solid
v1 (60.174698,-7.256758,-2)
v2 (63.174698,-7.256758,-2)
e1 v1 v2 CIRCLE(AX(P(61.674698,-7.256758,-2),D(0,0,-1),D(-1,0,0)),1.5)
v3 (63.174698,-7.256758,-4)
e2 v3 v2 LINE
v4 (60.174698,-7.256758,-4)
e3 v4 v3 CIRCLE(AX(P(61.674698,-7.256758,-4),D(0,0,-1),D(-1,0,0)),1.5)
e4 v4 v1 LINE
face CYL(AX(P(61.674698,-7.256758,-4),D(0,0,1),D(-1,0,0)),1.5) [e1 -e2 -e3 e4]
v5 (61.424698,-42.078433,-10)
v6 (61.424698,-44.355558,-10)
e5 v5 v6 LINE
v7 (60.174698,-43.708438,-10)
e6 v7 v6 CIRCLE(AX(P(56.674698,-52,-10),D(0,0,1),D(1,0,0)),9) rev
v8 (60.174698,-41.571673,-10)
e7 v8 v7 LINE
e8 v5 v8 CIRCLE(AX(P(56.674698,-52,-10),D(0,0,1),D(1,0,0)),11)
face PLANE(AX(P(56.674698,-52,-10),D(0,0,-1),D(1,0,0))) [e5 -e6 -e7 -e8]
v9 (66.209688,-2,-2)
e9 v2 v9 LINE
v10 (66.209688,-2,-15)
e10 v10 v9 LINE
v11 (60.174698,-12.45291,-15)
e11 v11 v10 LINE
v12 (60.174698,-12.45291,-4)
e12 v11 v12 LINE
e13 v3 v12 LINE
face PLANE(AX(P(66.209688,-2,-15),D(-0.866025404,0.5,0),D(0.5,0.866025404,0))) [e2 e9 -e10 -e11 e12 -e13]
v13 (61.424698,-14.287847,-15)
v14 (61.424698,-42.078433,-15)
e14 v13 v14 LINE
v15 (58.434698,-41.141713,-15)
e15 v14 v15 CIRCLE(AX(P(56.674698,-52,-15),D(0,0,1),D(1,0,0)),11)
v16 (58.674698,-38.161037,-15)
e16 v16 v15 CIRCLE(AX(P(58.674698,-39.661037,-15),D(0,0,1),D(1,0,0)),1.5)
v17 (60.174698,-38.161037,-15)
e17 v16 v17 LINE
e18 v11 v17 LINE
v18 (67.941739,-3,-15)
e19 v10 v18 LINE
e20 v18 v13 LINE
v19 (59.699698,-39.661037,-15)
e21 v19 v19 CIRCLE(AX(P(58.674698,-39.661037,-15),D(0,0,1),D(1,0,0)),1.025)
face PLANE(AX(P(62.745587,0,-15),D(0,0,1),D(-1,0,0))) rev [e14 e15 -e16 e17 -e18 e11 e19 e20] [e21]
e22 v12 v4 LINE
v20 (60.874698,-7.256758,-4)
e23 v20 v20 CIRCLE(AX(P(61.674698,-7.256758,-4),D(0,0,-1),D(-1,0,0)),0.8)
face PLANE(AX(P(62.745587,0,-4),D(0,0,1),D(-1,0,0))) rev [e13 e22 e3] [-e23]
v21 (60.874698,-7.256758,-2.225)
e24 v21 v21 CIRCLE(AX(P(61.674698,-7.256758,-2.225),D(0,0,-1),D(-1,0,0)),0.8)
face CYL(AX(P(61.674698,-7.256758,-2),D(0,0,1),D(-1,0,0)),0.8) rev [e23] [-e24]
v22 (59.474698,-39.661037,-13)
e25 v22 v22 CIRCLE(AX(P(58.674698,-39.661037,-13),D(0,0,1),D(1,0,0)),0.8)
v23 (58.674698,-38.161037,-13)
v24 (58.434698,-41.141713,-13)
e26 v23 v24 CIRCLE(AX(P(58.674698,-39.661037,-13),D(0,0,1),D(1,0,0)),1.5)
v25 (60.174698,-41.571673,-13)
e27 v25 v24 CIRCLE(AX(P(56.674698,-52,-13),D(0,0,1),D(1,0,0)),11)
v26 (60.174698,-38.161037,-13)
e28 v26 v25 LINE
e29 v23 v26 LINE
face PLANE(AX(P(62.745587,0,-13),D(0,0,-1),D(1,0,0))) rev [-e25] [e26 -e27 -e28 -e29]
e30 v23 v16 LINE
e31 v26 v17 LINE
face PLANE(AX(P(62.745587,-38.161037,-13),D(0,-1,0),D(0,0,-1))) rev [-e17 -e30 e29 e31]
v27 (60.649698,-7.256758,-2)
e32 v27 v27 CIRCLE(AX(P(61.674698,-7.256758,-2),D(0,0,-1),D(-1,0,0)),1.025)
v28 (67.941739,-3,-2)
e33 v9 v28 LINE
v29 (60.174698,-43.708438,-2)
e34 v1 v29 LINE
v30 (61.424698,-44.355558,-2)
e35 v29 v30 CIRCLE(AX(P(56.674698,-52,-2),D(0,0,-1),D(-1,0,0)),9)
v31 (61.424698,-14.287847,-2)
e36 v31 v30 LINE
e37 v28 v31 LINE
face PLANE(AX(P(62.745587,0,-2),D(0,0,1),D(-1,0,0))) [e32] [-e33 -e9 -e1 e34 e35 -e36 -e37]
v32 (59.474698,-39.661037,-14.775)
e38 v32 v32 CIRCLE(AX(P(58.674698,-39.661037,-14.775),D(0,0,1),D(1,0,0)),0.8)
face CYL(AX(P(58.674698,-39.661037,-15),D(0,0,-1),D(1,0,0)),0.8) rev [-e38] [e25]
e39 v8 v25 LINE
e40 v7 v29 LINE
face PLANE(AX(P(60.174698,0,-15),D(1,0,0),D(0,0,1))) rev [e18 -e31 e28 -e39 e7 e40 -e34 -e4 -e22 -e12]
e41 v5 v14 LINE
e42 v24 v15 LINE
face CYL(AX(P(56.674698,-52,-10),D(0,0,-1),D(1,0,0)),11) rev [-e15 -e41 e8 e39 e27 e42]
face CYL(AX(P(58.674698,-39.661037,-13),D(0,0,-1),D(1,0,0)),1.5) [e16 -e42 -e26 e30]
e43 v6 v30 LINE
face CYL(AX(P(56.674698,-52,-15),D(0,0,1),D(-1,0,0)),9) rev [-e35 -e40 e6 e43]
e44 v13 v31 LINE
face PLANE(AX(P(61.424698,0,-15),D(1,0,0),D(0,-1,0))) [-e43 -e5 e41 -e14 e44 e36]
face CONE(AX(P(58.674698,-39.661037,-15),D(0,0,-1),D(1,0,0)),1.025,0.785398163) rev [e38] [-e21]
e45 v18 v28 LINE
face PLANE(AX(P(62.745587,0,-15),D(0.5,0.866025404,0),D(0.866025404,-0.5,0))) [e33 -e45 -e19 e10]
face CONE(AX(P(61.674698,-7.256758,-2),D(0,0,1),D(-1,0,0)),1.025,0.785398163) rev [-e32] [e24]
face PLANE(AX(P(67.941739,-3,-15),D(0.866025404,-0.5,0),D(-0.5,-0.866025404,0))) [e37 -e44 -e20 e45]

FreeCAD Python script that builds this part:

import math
import FreeCAD as App
import Part
import Sketcher
Q = App.Units.Quantity

doc = App.newDocument("Part")
body = doc.addObject("PartDesign::Body", "Body")

# Sketch on XY plane
sketch1 = body.newObject("Sketcher::SketchObject", "Sketch")
sketch1.AttachmentSupport = (doc.getObject("XY_Plane"), [""])
sketch1.MapMode = "FlatFace"
sketch1.AttachmentOffset = App.Placement(App.Vector(0, 0, -2), App.Rotation())
sketch1.addGeometry(Part.LineSegment(App.Vector(2.6, -12.5, 0), App.Vector(-3.5, -2, 0)), False)
sketch1.addGeometry(Part.LineSegment(App.Vector(-3.5, -2, 0), App.Vector(-5.2, -3, 0)), False)
sketch1.addGeometry(Part.LineSegment(App.Vector(-5.2, -3, 0), App.Vector(1.3, -14.3, 0)), False)
sketch1.addGeometry(Part.LineSegment(App.Vector(1.3, -14.3, 0), App.Vector(1.3, -44.4, 0)), False)
sketch1.addGeometry(Part.ArcOfCircle(Part.Circle(App.Vector(6.1, -52, 0), App.Vector(0, 0, 1), 9), math.radians(112.89), math.radians(121.86)), False)
sketch1.addGeometry(Part.LineSegment(App.Vector(2.6, -43.7, 0), App.Vector(2.6, -12.5, 0)), False)
sketch1.addConstraint(Sketcher.Constraint("Coincident", 0, 2, 1, 1))
sketch1.addConstraint(Sketcher.Constraint("Coincident", 1, 2, 2, 1))
sketch1.addConstraint(Sketcher.Constraint("Coincident", 2, 2, 3, 1))
sketch1.addConstraint(Sketcher.Constraint("Coincident", 3, 2, 4, 2))
sketch1.addConstraint(Sketcher.Constraint("Coincident", 4, 1, 5, 1))
sketch1.addConstraint(Sketcher.Constraint("Coincident", 5, 2, 0, 1))
sketch1.addConstraint(Sketcher.Constraint("Vertical", 3))
sketch1.addConstraint(Sketcher.Constraint("Vertical", 5))
sketch1.addConstraint(Sketcher.Constraint("Perpendicular", 0, 1))
sketch1.addConstraint(Sketcher.Constraint("Perpendicular", 1, 2))
sketch1.addConstraint(Sketcher.Constraint("Radius", 4, 9.0))
sketch1.addConstraint(Sketcher.Constraint("Angle", 0, Q("120 deg")))
sketch1.addConstraint(Sketcher.Constraint("Distance", 1, 2.0))
sketch1.addConstraint(Sketcher.Constraint("DistanceY", 4, 3, -1, 1, 52.0))
sketch1.addConstraint(Sketcher.Constraint("DistanceY", 0, 2, -1, 1, 2.0))
sketch1.addConstraint(Sketcher.Constraint("DistanceX", 4, 1, 4, 3, 3.5))
sketch1.addConstraint(Sketcher.Constraint("DistanceX", 2, 2, 4, 3, 4.75))
sketch1.addConstraint(Sketcher.Constraint("DistanceY", 3, 2, 3, 1, 30.067711))
sketch1.addConstraint(Sketcher.Constraint("DistanceX", 0, 2, -1, 1, 3.464102))
pad1 = body.newObject("PartDesign::Pad", "Pad")
pad1.Profile = sketch1
pad1.Length = 13
pad1.Reversed = True

# Sketch on XY plane
sketch2 = body.newObject("Sketcher::SketchObject", "Sketch001")
sketch2.AttachmentSupport = (doc.getObject("XY_Plane"), [""])
sketch2.MapMode = "FlatFace"
sketch2.AttachmentOffset = App.Placement(App.Vector(0, 0, -15), App.Rotation())
sketch2.addGeometry(Part.Circle(App.Vector(6, -52, 0), App.Vector(0, 0, 1), 11), False)
sketch2.addConstraint(Sketcher.Constraint("Diameter", 0, 22.0))
sketch2.addConstraint(Sketcher.Constraint("DistanceY", 0, 3, -1, 1, 52.0))
sketch2.addConstraint(Sketcher.Constraint("DistanceX", -1, 1, 0, 3, 6.070889))
pocket1 = body.newObject("PartDesign::Pocket", "Pocket")
pocket1.Profile = sketch2
pocket1.Length = 5
pocket1.Reversed = True

# Sketch on XY plane
sketch3 = body.newObject("Sketcher::SketchObject", "Sketch002")
sketch3.AttachmentSupport = (doc.getObject("XY_Plane"), [""])
sketch3.MapMode = "FlatFace"
sketch3.AttachmentOffset = App.Placement(App.Vector(0, 0, -15), App.Rotation())
sketch3.addGeometry(Part.ArcOfCircle(Part.Circle(App.Vector(4.1, -39.7, 0), App.Vector(0, 0, 1), 1.5), math.radians(-81), math.radians(90)), False)
sketch3.addGeometry(Part.ArcOfCircle(Part.Circle(App.Vector(6.1, -52, 0), App.Vector(0, 0, 1), 11), math.radians(99.21), math.radians(108.55)), False)
sketch3.addGeometry(Part.LineSegment(App.Vector(2.6, -41.6, 0), App.Vector(2.6, -38.2, 0)), False)
sketch3.addGeometry(Part.LineSegment(App.Vector(2.6, -38.2, 0), App.Vector(4.1, -38.2, 0)), False)
sketch3.addConstraint(Sketcher.Constraint("Tangent", 0, 1, 1, 1))
sketch3.addConstraint(Sketcher.Constraint("Coincident", 1, 2, 2, 1))
sketch3.addConstraint(Sketcher.Constraint("Coincident", 2, 2, 3, 1))
sketch3.addConstraint(Sketcher.Constraint("Tangent", 3, 2, 0, 2))
sketch3.addConstraint(Sketcher.Constraint("Vertical", 2))
sketch3.addConstraint(Sketcher.Constraint("Horizontal", 3))
sketch3.addConstraint(Sketcher.Constraint("Radius", 1, 11.0))
sketch3.addConstraint(Sketcher.Constraint("Radius", 0, 1.5))
sketch3.addConstraint(Sketcher.Constraint("DistanceX", 3, 1, 3, 2, 1.5))
sketch3.addConstraint(Sketcher.Constraint("DistanceY", 1, 3, -1, 1, 52.0))
sketch3.addConstraint(Sketcher.Constraint("DistanceX", 0, 3, 1, 3, 2.0))
sketch3.addConstraint(Sketcher.Constraint("DistanceX", -1, 1, 0, 3, 4.070889))
pad2 = body.newObject("PartDesign::Pad", "Pad001")
pad2.Profile = sketch3
pad2.Length = 2

# Sketch on XY plane
sketch4 = body.newObject("Sketcher::SketchObject", "Sketch003")
sketch4.AttachmentSupport = (doc.getObject("XY_Plane"), [""])
sketch4.MapMode = "FlatFace"
sketch4.AttachmentOffset = App.Placement(App.Vector(0, 0, -2), App.Rotation())
sketch4.addGeometry(Part.LineSegment(App.Vector(0.3, -8.6, 0), App.Vector(2.6, -12.5, 0)), False)
sketch4.addGeometry(Part.LineSegment(App.Vector(2.6, -12.5, 0), App.Vector(2.6, -7.3, 0)), False)
sketch4.addGeometry(Part.ArcOfCircle(Part.Circle(App.Vector(1.1, -7.3, 0), App.Vector(0, 0, 1), 1.5), math.radians(0), math.radians(180)), False)
sketch4.addGeometry(Part.LineSegment(App.Vector(-0.4, -7.3, 0), App.Vector(0.3, -8.6, 0)), False)
sketch4.addConstraint(Sketcher.Constraint("Coincident", 0, 2, 1, 1))
sketch4.addConstraint(Sketcher.Constraint("Tangent", 1, 2, 2, 1))
sketch4.addConstraint(Sketcher.Constraint("Coincident", 2, 2, 3, 1))
sketch4.addConstraint(Sketcher.Constraint("Coincident", 3, 2, 0, 1))
sketch4.addConstraint(Sketcher.Constraint("Vertical", 1))
sketch4.addConstraint(Sketcher.Constraint("Parallel", 0, 3))
sketch4.addConstraint(Sketcher.Constraint("Horizontal", 1, 2, 2, 2))
sketch4.addConstraint(Sketcher.Constraint("Radius", 2, 1.5))
sketch4.addConstraint(Sketcher.Constraint("Angle", 0, Q("-60 deg")))
sketch4.addConstraint(Sketcher.Constraint("Distance", 0, 4.5))
sketch4.addConstraint(Sketcher.Constraint("DistanceX", -1, 1, 2, 3, 1.070889))
sketch4.addConstraint(Sketcher.Constraint("DistanceY", 0, 2, -1, 1, 12.45291))
pad3 = body.newObject("PartDesign::Pad", "Pad002")
pad3.Profile = sketch4
pad3.Length = 2
pad3.Reversed = True

# Sketch on XY plane
sketch5 = body.newObject("Sketcher::SketchObject", "Sketch004")
sketch5.AttachmentSupport = (doc.getObject("XY_Plane"), [""])
sketch5.MapMode = "FlatFace"
sketch5.AttachmentOffset = App.Placement(App.Vector(0, 0, -2), App.Rotation())
sketch5.addGeometry(Part.Circle(App.Vector(1.1, -7.3, 0), App.Vector(0, 0, 1), 0.8), False)
sketch5.addConstraint(Sketcher.Constraint("Diameter", 0, 1.6))
sketch5.addConstraint(Sketcher.Constraint("DistanceX", -1, 1, 0, 3, 1.070889))
sketch5.addConstraint(Sketcher.Constraint("DistanceY", 0, 3, -1, 1, 7.256758))
doc.recompute()
hole = body.newObject("PartDesign::Hole", "Hole")
hole.Profile = sketch5
hole.ThreadType = "None"
hole.Diameter = 1.6
hole.DepthType = "Dimension"
hole.Depth = 5.2
hole.DrillPoint = "Angled"
hole.DrillPointAngle = 118
hole.HoleCutType = "Countersink"
hole.HoleCutDiameter = 2.05
hole.HoleCutCountersinkAngle = 90

# Sketch on XY plane
sketch6 = body.newObject("Sketcher::SketchObject", "Sketch005")
sketch6.AttachmentSupport = (doc.getObject("XY_Plane"), [""])
sketch6.MapMode = "FlatFace"
sketch6.AttachmentOffset = App.Placement(App.Vector(0, 0, -15), App.Rotation())
sketch6.addGeometry(Part.Circle(App.Vector(4.1, -39.7, 0), App.Vector(0, 0, 1), 0.8), False)
sketch6.addConstraint(Sketcher.Constraint("Diameter", 0, 1.6))
sketch6.addConstraint(Sketcher.Constraint("DistanceX", -1, 1, 0, 3, 4.070889))
sketch6.addConstraint(Sketcher.Constraint("DistanceY", 0, 3, -1, 1, 39.661037))
doc.recompute()
hole2 = body.newObject("PartDesign::Hole", "Hole001")
hole2.Profile = sketch6
hole2.ThreadType = "None"
hole2.Diameter = 1.6
hole2.DepthType = "Dimension"
hole2.Depth = 5.2
hole2.DrillPoint = "Angled"
hole2.DrillPointAngle = 118
hole2.HoleCutType = "Countersink"
hole2.HoleCutDiameter = 2.05
hole2.HoleCutCountersinkAngle = 90
hole2.Reversed = True
body2 = doc.addObject("PartDesign::Body", "Body001")
doc.recompute()

mirroring = doc.addObject("Part::Mirroring", "Mirroring")
mirroring.Source = body
mirroring.Base = App.Vector(31.372793, 0, 0)
mirroring.Normal = App.Vector(1, 0, 0)
body2.BaseFeature = mirroring
doc.recompute()
body.Visibility = False
mirroring.Visibility = False

doc.recompute()
